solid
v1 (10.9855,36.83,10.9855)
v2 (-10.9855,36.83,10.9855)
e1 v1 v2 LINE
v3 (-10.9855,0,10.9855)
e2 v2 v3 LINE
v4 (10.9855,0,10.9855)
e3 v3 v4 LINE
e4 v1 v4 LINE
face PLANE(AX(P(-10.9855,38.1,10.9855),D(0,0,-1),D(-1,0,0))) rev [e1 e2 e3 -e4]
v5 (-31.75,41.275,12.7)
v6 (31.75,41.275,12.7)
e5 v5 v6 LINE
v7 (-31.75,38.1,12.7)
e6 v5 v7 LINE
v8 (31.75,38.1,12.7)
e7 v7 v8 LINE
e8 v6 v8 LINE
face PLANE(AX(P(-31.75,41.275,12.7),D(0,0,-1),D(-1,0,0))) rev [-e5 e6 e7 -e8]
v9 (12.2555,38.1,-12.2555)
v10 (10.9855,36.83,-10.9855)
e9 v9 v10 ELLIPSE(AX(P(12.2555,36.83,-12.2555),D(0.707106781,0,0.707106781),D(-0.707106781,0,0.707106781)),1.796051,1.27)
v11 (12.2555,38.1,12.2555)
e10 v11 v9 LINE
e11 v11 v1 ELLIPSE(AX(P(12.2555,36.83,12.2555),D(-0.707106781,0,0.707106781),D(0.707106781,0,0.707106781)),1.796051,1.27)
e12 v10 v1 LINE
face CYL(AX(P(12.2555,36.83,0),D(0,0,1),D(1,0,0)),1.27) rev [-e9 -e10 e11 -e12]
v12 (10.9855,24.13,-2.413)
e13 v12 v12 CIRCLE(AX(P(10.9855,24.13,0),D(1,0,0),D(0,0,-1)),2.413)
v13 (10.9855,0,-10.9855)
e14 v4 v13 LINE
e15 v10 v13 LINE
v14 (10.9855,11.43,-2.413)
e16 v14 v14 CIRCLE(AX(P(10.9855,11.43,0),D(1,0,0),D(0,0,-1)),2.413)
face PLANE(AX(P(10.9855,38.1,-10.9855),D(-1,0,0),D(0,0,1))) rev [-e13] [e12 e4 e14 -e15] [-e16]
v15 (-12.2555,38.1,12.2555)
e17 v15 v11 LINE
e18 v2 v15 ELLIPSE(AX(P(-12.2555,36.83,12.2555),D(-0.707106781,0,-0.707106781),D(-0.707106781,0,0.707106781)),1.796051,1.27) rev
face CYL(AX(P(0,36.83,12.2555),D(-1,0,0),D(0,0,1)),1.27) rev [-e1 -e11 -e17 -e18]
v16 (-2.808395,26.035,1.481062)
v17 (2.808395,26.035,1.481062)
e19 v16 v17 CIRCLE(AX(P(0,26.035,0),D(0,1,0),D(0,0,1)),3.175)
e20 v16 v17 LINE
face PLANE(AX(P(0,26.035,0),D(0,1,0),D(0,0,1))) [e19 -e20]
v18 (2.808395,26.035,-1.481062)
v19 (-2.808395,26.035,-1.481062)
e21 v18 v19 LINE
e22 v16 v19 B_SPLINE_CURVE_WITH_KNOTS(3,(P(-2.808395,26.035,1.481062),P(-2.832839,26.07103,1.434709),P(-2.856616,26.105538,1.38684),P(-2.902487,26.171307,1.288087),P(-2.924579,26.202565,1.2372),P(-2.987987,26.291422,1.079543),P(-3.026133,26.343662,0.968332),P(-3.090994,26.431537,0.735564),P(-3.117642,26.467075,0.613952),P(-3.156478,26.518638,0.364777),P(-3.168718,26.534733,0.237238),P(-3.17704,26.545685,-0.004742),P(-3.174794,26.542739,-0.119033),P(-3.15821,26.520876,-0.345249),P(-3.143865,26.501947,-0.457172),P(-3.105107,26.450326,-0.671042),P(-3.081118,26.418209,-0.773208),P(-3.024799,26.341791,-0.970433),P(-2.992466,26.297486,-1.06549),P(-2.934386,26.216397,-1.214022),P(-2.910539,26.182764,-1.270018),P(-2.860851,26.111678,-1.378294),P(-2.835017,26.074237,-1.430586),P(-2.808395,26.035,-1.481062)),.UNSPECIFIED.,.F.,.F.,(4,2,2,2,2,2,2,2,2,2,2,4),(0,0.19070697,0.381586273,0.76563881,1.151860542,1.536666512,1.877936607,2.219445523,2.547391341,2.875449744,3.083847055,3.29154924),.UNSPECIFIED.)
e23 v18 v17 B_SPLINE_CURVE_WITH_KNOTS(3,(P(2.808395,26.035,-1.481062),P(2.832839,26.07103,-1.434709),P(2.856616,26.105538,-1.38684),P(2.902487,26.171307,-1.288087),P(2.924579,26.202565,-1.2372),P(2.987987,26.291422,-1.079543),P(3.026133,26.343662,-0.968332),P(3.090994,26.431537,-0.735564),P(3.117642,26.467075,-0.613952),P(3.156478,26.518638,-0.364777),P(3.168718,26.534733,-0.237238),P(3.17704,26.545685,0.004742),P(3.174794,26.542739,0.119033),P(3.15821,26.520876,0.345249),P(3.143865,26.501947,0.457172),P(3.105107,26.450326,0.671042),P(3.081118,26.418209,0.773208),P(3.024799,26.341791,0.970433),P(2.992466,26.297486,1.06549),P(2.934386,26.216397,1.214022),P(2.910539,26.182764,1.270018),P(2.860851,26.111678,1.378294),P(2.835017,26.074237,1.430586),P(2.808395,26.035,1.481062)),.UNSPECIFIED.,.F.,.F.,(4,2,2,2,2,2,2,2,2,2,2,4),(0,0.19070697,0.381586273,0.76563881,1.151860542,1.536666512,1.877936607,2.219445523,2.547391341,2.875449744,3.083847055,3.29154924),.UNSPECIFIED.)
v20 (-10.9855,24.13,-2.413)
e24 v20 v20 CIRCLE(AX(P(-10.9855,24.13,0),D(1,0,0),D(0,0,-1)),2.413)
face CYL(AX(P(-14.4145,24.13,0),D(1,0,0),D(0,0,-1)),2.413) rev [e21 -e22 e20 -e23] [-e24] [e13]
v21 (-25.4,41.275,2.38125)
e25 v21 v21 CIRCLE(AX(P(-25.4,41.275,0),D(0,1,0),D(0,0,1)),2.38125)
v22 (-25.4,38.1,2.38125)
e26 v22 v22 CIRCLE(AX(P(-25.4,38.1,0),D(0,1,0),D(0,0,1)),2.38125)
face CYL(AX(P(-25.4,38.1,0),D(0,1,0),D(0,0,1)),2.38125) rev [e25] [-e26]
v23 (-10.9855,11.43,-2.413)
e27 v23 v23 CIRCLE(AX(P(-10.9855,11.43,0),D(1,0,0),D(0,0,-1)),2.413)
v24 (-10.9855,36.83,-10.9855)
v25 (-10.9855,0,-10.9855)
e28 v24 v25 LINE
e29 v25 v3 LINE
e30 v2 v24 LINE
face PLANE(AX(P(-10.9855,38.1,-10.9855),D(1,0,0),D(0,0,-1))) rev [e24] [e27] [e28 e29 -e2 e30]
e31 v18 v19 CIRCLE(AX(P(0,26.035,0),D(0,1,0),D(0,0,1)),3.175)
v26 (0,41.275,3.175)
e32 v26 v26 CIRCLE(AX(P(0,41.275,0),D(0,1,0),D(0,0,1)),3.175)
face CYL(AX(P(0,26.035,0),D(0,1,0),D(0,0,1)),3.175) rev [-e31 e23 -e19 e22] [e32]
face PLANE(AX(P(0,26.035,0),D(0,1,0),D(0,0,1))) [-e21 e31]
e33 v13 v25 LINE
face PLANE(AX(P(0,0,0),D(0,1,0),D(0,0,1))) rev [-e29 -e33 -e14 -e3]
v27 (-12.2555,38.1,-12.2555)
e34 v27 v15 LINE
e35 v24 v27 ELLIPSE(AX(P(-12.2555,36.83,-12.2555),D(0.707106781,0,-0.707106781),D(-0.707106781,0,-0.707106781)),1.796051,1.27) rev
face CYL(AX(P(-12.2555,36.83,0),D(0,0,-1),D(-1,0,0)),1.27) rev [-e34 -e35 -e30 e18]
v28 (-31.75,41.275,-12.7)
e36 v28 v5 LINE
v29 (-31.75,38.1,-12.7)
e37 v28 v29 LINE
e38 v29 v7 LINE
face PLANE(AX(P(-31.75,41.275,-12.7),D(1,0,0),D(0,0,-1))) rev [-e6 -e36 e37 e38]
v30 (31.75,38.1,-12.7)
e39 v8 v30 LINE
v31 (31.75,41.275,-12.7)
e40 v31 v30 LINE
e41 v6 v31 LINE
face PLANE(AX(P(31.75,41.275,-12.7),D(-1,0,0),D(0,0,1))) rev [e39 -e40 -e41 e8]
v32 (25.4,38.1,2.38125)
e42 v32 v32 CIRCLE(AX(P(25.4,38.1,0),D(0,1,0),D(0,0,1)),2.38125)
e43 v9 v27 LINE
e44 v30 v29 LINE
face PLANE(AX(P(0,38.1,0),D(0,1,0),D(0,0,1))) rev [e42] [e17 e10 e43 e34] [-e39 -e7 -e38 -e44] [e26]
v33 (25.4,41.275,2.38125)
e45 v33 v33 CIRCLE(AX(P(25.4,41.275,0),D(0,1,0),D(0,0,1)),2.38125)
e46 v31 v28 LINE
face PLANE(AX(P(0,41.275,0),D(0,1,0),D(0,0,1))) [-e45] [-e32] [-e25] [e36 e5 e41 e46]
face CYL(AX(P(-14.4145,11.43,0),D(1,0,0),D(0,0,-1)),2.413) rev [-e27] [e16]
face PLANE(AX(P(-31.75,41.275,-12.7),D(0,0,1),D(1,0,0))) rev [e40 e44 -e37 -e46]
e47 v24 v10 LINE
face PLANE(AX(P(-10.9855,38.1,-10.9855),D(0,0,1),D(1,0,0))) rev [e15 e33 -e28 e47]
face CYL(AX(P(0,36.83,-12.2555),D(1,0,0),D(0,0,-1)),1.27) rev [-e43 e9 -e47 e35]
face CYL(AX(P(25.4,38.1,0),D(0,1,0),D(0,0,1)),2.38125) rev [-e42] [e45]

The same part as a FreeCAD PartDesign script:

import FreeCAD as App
import Part
import Sketcher
from FreeCAD import Vector
Q = App.Units.Quantity


def edges_at(feature, points):
    """Names of the edges that pass closest to the given points."""
    edges = feature.Shape.Edges
    near = lambda p: min(range(len(edges)), key=lambda i: edges[i].distToShape(Part.Vertex(*p))[0])
    return sorted({f"Edge{near(p) + 1}" for p in points})

doc = App.newDocument("Part")
body = doc.addObject("PartDesign::Body", "Body")

sketch1 = body.newObject("Sketcher::SketchObject", "Sketch")
sketch1.AttachmentSupport = (doc.getObject("XZ_Plane"), [""])
sketch1.MapMode = "FlatFace"
sketch1.addGeometry(Part.LineSegment(Vector(-11, -11, 0), Vector(-11, 11, 0)), False)
sketch1.addGeometry(Part.LineSegment(Vector(-11, 11, 0), Vector(11, 11, 0)), False)
sketch1.addGeometry(Part.LineSegment(Vector(11, 11, 0), Vector(11, -11, 0)), False)
sketch1.addGeometry(Part.LineSegment(Vector(11, -11, 0), Vector(-11, -11, 0)), False)
sketch1.addConstraint(Sketcher.Constraint("Coincident", 0, 2, 1, 1))
sketch1.addConstraint(Sketcher.Constraint("Coincident", 1, 2, 2, 1))
sketch1.addConstraint(Sketcher.Constraint("Coincident", 2, 2, 3, 1))
sketch1.addConstraint(Sketcher.Constraint("Coincident", 3, 2, 0, 1))
sketch1.addConstraint(Sketcher.Constraint("Vertical", 0))
sketch1.addConstraint(Sketcher.Constraint("Horizontal", 1))
sketch1.addConstraint(Sketcher.Constraint("Vertical", 2))
sketch1.addConstraint(Sketcher.Constraint("Horizontal", 3))
sketch1.addConstraint(Sketcher.Constraint("Symmetric", 0, 2, 2, 2, -1, 1))
sketch1.addConstraint(Sketcher.Constraint("Equal", 3, 0))
sketch1.addConstraint(Sketcher.Constraint("DistanceX", 1, 1, 1, 2, Q("0.865 in")))
pad1 = body.newObject("PartDesign::Pad", "Pad")
pad1.Profile = sketch1
pad1.Length = Q("1.5 in")
pad1.Reversed = True

sketch2 = body.newObject("Sketcher::SketchObject", "Sketch001")
sketch2.AttachmentSupport = (doc.getObject("XZ_Plane"), [""])
sketch2.MapMode = "FlatFace"
sketch2.AttachmentOffset = App.Placement(Vector(0, 0, -1.5 * 25.4), App.Rotation())
sketch2.addGeometry(Part.LineSegment(Vector(-32, -13, 0), Vector(-32, 13, 0)), False)
sketch2.addGeometry(Part.LineSegment(Vector(-32, 13, 0), Vector(32, 13, 0)), False)
sketch2.addGeometry(Part.LineSegment(Vector(32, 13, 0), Vector(32, -13, 0)), False)
sketch2.addGeometry(Part.LineSegment(Vector(32, -13, 0), Vector(-32, -13, 0)), False)
sketch2.addConstraint(Sketcher.Constraint("Coincident", 0, 2, 1, 1))
sketch2.addConstraint(Sketcher.Constraint("Coincident", 1, 2, 2, 1))
sketch2.addConstraint(Sketcher.Constraint("Coincident", 2, 2, 3, 1))
sketch2.addConstraint(Sketcher.Constraint("Coincident", 3, 2, 0, 1))
sketch2.addConstraint(Sketcher.Constraint("Vertical", 0))
sketch2.addConstraint(Sketcher.Constraint("Horizontal", 1))
sketch2.addConstraint(Sketcher.Constraint("Vertical", 2))
sketch2.addConstraint(Sketcher.Constraint("Horizontal", 3))
sketch2.addConstraint(Sketcher.Constraint("Symmetric", 0, 2, 2, 2, -1, 1))
sketch2.addConstraint(Sketcher.Constraint("DistanceY", 0, 1, 0, 2, Q("1 in")))
sketch2.addConstraint(Sketcher.Constraint("DistanceX", 1, 1, 1, 2, Q("2.5 in")))
pad2 = body.newObject("PartDesign::Pad", "Pad001")
pad2.Profile = sketch2
pad2.Length = Q("0.125 in")
pad2.Reversed = True

sketch3 = body.newObject("Sketcher::SketchObject", "Sketch002")
sketch3.AttachmentSupport = (doc.getObject("XZ_Plane"), [""])
sketch3.MapMode = "FlatFace"
sketch3.AttachmentOffset = App.Placement(Vector(0, 0, -1.625 * 25.4), App.Rotation())
sketch3.addGeometry(Part.Circle(Vector(25.4, 0, 0), Vector(0, 0, 1), 2.4), False)
sketch3.addGeometry(Part.Circle(Vector(-25.4, 0, 0), Vector(0, 0, 1), 2.4), False)
sketch3.addConstraint(Sketcher.Constraint("Equal", 0, 1))
sketch3.addConstraint(Sketcher.Constraint("Symmetric", 0, 3, 1, 3, -1, 1))
sketch3.addConstraint(Sketcher.Constraint("PointOnObject", 0, 3, -1))
sketch3.addConstraint(Sketcher.Constraint("Diameter", 0, Q("0.1875 in")))
sketch3.addConstraint(Sketcher.Constraint("DistanceX", -1, 1, 0, 3, Q("1 in")))
pocket1 = body.newObject("PartDesign::Pocket", "Pocket")
pocket1.Profile = sketch3
pocket1.Length = Q("0.125 in")
pocket1.Reversed = True
doc.recompute()

fillet = body.newObject("PartDesign::Fillet", "Fillet")
fillet.Base = (pocket1, edges_at(pocket1, [
    (-10.986, 38.1, 0),
    (0, 38.1, 10.986),
    (10.986, 38.1, 0),
    (0, 38.1, -10.986),
]))
fillet.Radius = Q("0.05 in")

sketch4 = body.newObject("Sketcher::SketchObject", "Sketch003")
sketch4.AttachmentSupport = (doc.getObject("XZ_Plane"), [""])
sketch4.MapMode = "FlatFace"
sketch4.AttachmentOffset = App.Placement(Vector(0, 0, -1.625 * 25.4), App.Rotation())
sketch4.addGeometry(Part.Circle(Vector(0, 0, 0), Vector(0, 0, 1), 3.2), False)
sketch4.addConstraint(Sketcher.Constraint("Coincident", 0, 3, -1, 1))
sketch4.addConstraint(Sketcher.Constraint("Diameter", 0, Q("0.25 in")))
pocket2 = body.newObject("PartDesign::Pocket", "Pocket001")
pocket2.Profile = sketch4
pocket2.Length = Q("0.6 in")
pocket2.Reversed = True

sketch5 = body.newObject("Sketcher::SketchObject", "Sketch004")
sketch5.AttachmentSupport = (doc.getObject("YZ_Plane"), [""])
sketch5.MapMode = "FlatFace"
sketch5.AttachmentOffset = App.Placement(Vector(0, 0, 0.4325 * 25.4), App.Rotation())
sketch5.addGeometry(Part.Circle(Vector(24.1, 0, 0), Vector(0, 0, 1), 2.4), False)
sketch5.addGeometry(Part.Circle(Vector(11.4, 0, 0), Vector(0, 0, 1), 2.4), False)
sketch5.addConstraint(Sketcher.Constraint("Equal", 0, 1))
sketch5.addConstraint(Sketcher.Constraint("PointOnObject", 0, 3, -1))
sketch5.addConstraint(Sketcher.Constraint("PointOnObject", 1, 3, -1))
sketch5.addConstraint(Sketcher.Constraint("Diameter", 0, Q("0.19 in")))
sketch5.addConstraint(Sketcher.Constraint("DistanceX", 1, 3, 0, 3, Q("0.5 in")))
sketch5.addConstraint(Sketcher.Constraint("DistanceX", -1, 1, 0, 3, Q("0.95 in")))
pocket3 = body.newObject("PartDesign::Pocket", "Pocket002")
pocket3.Profile = sketch5
pocket3.Length = Q("1 in")

doc.recompute()
